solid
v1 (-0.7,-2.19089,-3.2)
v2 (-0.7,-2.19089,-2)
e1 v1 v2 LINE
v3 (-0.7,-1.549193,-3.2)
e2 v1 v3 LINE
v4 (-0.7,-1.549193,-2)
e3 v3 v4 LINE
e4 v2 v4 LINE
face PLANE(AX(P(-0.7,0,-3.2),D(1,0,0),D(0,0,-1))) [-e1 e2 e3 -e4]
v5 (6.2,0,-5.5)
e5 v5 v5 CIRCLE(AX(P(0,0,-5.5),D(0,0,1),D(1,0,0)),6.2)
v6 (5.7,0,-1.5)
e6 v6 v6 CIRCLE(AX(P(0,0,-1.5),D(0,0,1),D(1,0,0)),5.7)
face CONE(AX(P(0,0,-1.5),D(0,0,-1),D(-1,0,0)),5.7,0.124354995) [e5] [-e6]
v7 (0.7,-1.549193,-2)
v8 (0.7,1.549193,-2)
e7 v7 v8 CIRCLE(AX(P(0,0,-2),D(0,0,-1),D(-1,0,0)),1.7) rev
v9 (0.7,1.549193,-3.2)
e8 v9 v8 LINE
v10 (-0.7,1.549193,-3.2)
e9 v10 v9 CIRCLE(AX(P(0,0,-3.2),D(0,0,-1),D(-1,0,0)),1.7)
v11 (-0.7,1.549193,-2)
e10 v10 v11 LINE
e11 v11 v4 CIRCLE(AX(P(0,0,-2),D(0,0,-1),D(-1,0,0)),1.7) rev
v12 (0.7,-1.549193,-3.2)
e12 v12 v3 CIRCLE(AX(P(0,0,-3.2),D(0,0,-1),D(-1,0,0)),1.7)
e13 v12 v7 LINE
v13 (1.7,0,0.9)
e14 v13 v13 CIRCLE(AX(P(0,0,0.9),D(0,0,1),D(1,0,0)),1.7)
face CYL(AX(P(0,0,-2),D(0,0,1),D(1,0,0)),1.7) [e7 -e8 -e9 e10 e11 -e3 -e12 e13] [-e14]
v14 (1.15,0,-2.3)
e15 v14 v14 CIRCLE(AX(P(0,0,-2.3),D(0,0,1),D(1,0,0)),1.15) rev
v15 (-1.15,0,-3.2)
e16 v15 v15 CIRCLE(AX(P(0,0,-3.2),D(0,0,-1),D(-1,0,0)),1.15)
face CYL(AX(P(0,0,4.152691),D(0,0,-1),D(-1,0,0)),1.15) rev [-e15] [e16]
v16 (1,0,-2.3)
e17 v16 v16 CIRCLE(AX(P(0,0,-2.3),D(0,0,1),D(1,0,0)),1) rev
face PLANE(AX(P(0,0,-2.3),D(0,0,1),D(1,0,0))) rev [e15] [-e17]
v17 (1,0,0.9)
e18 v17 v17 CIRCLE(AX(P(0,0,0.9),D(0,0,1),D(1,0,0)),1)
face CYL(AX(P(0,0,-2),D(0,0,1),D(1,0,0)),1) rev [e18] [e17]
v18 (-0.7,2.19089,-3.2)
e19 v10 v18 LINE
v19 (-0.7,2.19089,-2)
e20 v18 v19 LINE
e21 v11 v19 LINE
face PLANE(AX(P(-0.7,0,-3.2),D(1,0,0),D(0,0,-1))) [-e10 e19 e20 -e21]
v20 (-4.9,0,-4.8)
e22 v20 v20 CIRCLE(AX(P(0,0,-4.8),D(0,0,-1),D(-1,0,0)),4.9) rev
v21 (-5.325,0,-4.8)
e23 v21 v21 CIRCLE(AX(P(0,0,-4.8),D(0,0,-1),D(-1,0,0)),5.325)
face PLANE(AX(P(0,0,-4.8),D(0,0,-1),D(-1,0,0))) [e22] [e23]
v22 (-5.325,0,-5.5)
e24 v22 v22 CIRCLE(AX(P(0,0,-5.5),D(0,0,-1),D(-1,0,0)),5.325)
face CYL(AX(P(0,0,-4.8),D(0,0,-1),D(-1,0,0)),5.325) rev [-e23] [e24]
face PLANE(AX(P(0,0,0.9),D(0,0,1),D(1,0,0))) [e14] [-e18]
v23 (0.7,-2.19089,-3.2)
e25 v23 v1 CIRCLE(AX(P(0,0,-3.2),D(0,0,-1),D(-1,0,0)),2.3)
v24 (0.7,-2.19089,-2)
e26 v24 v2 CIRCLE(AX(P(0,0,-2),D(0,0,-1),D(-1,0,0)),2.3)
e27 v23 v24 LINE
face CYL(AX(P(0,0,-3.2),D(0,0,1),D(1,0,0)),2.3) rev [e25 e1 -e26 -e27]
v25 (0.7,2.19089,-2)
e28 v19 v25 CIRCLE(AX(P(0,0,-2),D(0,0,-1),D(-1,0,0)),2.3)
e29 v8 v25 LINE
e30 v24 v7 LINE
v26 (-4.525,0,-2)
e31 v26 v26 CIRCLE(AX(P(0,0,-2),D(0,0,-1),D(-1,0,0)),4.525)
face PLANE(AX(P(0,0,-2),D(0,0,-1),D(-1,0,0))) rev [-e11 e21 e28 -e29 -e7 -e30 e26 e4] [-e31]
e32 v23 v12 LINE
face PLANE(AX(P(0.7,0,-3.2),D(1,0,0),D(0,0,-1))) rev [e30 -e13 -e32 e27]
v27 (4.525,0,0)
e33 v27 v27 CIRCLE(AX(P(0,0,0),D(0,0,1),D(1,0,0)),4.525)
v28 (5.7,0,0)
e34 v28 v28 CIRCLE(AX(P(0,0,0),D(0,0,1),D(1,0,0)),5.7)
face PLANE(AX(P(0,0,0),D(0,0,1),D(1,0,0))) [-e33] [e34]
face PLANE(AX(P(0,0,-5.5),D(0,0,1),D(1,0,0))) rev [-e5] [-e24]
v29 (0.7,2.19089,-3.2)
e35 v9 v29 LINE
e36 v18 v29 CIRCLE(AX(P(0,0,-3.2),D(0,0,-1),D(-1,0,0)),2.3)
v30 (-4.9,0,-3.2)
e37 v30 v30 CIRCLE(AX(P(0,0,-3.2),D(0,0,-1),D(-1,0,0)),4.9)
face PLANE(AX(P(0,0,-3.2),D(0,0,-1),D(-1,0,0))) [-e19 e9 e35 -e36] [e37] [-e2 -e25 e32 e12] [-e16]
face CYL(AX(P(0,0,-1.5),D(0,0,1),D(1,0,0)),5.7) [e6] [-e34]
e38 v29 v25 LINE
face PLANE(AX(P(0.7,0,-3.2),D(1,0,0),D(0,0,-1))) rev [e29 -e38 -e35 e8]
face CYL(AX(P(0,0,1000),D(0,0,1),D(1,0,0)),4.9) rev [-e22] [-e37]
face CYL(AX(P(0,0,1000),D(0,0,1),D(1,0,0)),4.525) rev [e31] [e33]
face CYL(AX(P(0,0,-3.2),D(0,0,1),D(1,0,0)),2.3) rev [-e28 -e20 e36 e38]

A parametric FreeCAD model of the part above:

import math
import FreeCAD as App
import Part
import Sketcher
Q = App.Units.Quantity


def add_polygon(sketch, points):
    """Adds a closed chain of lines whose ends are joined by coincident constraints."""
    first, n = sketch.GeometryCount, len(points)
    for a, b in zip(points, points[1:] + points[:1]):
        sketch.addGeometry(Part.LineSegment(App.Vector(*a, 0), App.Vector(*b, 0)), False)
    for i in range(n):
        sketch.addConstraint(Sketcher.Constraint("Coincident", first + i, 2, first + (i + 1) % n, 1))

doc = App.newDocument("Part")
body = doc.addObject("PartDesign::Body", "Body")

sketch1 = doc.addObject("Sketcher::SketchObject", "Sketch")
body.addObject(sketch1)
sketch1.AttachmentSupport = (doc.XY_Plane, [""])
sketch1.MapMode = "FlatFace"
sketch1.addGeometry(Part.Circle(App.Vector(0, 0, 0), App.Vector(0, 0, 1), 1.7), False)
sketch1.addGeometry(Part.Circle(App.Vector(0, 0, 0), App.Vector(0, 0, 1), 1), False)
sketch1.addConstraint(Sketcher.Constraint("Coincident", 0, 3, -1, 1))
sketch1.addConstraint(Sketcher.Constraint("Coincident", 1, 3, -1, 1))
sketch1.addConstraint(Sketcher.Constraint("Diameter", 1, Q("2 mm")))
sketch1.addConstraint(Sketcher.Constraint("Diameter", 0, Q("3.4 mm")))
pad1 = doc.addObject("PartDesign::Pad", "Pad")
body.addObject(pad1)
pad1.Profile = sketch1
pad1.Type = "TwoLengths"
pad1.Length = 0.9
pad1.Length2 = 2

sketch2 = doc.addObject("Sketcher::SketchObject", "Sketch001")
body.addObject(sketch2)
sketch2.AttachmentSupport = (doc.XY_Plane, [""])
sketch2.MapMode = "FlatFace"
sketch2.AttachmentOffset = App.Placement(App.Vector(0, 0, -2), App.Rotation())
sketch2.addGeometry(Part.Circle(App.Vector(0, 0, 0), App.Vector(0, 0, 1), 5), False)
sketch2.addConstraint(Sketcher.Constraint("Coincident", 0, 3, -1, 1))
sketch2.addConstraint(Sketcher.Constraint("Diameter", 0, Q("10 mm")))
pad2 = doc.addObject("PartDesign::Pad", "Pad001")
body.addObject(pad2)
pad2.Profile = sketch2
pad2.Length = 1.2
pad2.Reversed = True

sketch3 = doc.addObject("Sketcher::SketchObject", "Sketch002")
body.addObject(sketch3)
sketch3.AttachmentSupport = (doc.XY_Plane, [""])
sketch3.MapMode = "FlatFace"
sketch3.AttachmentOffset = App.Placement(App.Vector(0, 0, -2), App.Rotation())
sketch3.addGeometry(Part.LineSegment(App.Vector(0.7, -1.5, 0), App.Vector(0.7, -2.2, 0)), False)
sketch3.addGeometry(Part.ArcOfCircle(Part.Circle(App.Vector(0, 0, 0), App.Vector(0, 0, 1), 2.3), math.radians(-108), math.radians(-72)), False)
sketch3.addGeometry(Part.LineSegment(App.Vector(-0.7, -2.2, 0), App.Vector(-0.7, -1.5, 0)), False)
sketch3.addGeometry(Part.ArcOfCircle(Part.Circle(App.Vector(0, 0, 0), App.Vector(0, 0, 1), 1.7), math.radians(-114), math.radians(-66)), False)
sketch3.addGeometry(Part.ArcOfCircle(Part.Circle(App.Vector(0, 0, 0), App.Vector(0, 0, 1), 2.3), math.radians(72), math.radians(108)), False)
sketch3.addGeometry(Part.LineSegment(App.Vector(0.7, 2.2, 0), App.Vector(0.7, 1.5, 0)), False)
sketch3.addGeometry(Part.ArcOfCircle(Part.Circle(App.Vector(0, 0, 0), App.Vector(0, 0, 1), 1.7), math.radians(66), math.radians(114)), False)
sketch3.addGeometry(Part.LineSegment(App.Vector(-0.7, 1.5, 0), App.Vector(-0.7, 2.2, 0)), False)
sketch3.addGeometry(Part.Circle(App.Vector(0, 0, 0), App.Vector(0, 0, 1), 1), False)
sketch3.addConstraint(Sketcher.Constraint("Coincident", 0, 2, 1, 2))
sketch3.addConstraint(Sketcher.Constraint("Coincident", 1, 1, 2, 1))
sketch3.addConstraint(Sketcher.Constraint("Coincident", 2, 2, 3, 1))
sketch3.addConstraint(Sketcher.Constraint("Coincident", 3, 2, 0, 1))
sketch3.addConstraint(Sketcher.Constraint("Coincident", 4, 1, 5, 1))
sketch3.addConstraint(Sketcher.Constraint("Coincident", 5, 2, 6, 1))
sketch3.addConstraint(Sketcher.Constraint("Coincident", 6, 2, 7, 1))
sketch3.addConstraint(Sketcher.Constraint("Coincident", 7, 2, 4, 2))
sketch3.addConstraint(Sketcher.Constraint("Vertical", 0))
sketch3.addConstraint(Sketcher.Constraint("Vertical", 2))
sketch3.addConstraint(Sketcher.Constraint("Vertical", 5))
sketch3.addConstraint(Sketcher.Constraint("Vertical", 7))
sketch3.addConstraint(Sketcher.Constraint("Coincident", 1, 3, -1, 1))
sketch3.addConstraint(Sketcher.Constraint("Coincident", 3, 3, -1, 1))
sketch3.addConstraint(Sketcher.Constraint("Coincident", 4, 3, -1, 1))
sketch3.addConstraint(Sketcher.Constraint("Coincident", 6, 3, -1, 1))
sketch3.addConstraint(Sketcher.Constraint("Coincident", 8, 3, -1, 1))
sketch3.addConstraint(Sketcher.Constraint("Equal", 1, 4))
sketch3.addConstraint(Sketcher.Constraint("Equal", 3, 6))
sketch3.addConstraint(Sketcher.Constraint("Horizontal", 0, 2, 1, 1))
sketch3.addConstraint(Sketcher.Constraint("Horizontal", 5, 2, 6, 2))
sketch3.addConstraint(Sketcher.Constraint("Vertical", 3, 2, 4, 1))
sketch3.addConstraint(Sketcher.Constraint("Diameter", 8, Q("2 mm")))
sketch3.addConstraint(Sketcher.Constraint("Radius", 1, Q("2.3 mm")))
sketch3.addConstraint(Sketcher.Constraint("Radius", 3, Q("1.7 mm")))
sketch3.addConstraint(Sketcher.Constraint("DistanceX", -1, 1, 0, 2, Q("0.7 mm")))
pocket1 = doc.addObject("PartDesign::Pocket", "Pocket")
body.addObject(pocket1)
pocket1.Profile = sketch3
pocket1.Type = "ThroughAll"

sketch4 = doc.addObject("Sketcher::SketchObject", "Sketch003")
body.addObject(sketch4)
sketch4.AttachmentSupport = (doc.XY_Plane, [""])
sketch4.MapMode = "FlatFace"
sketch4.AttachmentOffset = App.Placement(App.Vector(0, 0, -3.2), App.Rotation())
sketch4.addGeometry(Part.Circle(App.Vector(0, 0, 0), App.Vector(0, 0, 1), 1.1), False)
sketch4.addConstraint(Sketcher.Constraint("Coincident", 0, 3, -1, 1))
sketch4.addConstraint(Sketcher.Constraint("Diameter", 0, Q("2.3 mm")))
pocket2 = doc.addObject("PartDesign::Pocket", "Pocket001")
body.addObject(pocket2)
pocket2.Profile = sketch4
pocket2.Length = 0.9
pocket2.Reversed = True
body2 = doc.addObject("PartDesign::Body", "Body001")

sketch5 = doc.addObject("Sketcher::SketchObject", "Sketch004")
body2.addObject(sketch5)
sketch5.AttachmentSupport = (doc.getObject("XY_Plane001"), [""])
sketch5.MapMode = "FlatFace"
sketch5.addGeometry(Part.Circle(App.Vector(0, 0, 0), App.Vector(0, 0, 1), 5.7), False)
sketch5.addGeometry(Part.Circle(App.Vector(0, 0, 0), App.Vector(0, 0, 1), 4.5), False)
sketch5.addConstraint(Sketcher.Constraint("Coincident", 0, 3, -1, 1))
sketch5.addConstraint(Sketcher.Constraint("Coincident", 1, 3, -1, 1))
sketch5.addConstraint(Sketcher.Constraint("Diameter", 0, Q("11.4 mm")))
sketch5.addConstraint(Sketcher.Constraint("Diameter", 1, Q("9.05 mm")))
pad3 = doc.addObject("PartDesign::Pad", "Pad002")
body2.addObject(pad3)
pad3.Profile = sketch5
pad3.Length = 1.5
pad3.Reversed = True
body.AllowCompound = True
doc.recompute()

boolean = doc.addObject("PartDesign::Boolean", "Boolean")
body.addObject(boolean)
boolean.Type = "Fuse"
boolean.addObjects([body2])

sketch6 = doc.addObject("Sketcher::SketchObject", "Sketch005")
body.addObject(sketch6)
sketch6.AttachmentSupport = (doc.YZ_Plane, [""])
sketch6.MapMode = "FlatFace"
add_polygon(sketch6, [(6.2, -5.5), (5.7, -1.5), (4.53, -1.5), (4.53, -2), (4.9, -2), (4.9, -5.5)])
sketch6.addConstraint(Sketcher.Constraint("Horizontal", 1))
sketch6.addConstraint(Sketcher.Constraint("Vertical", 2))
sketch6.addConstraint(Sketcher.Constraint("Horizontal", 3))
sketch6.addConstraint(Sketcher.Constraint("Vertical", 4))
sketch6.addConstraint(Sketcher.Constraint("Horizontal", 5))
sketch6.addConstraint(Sketcher.Constraint("DistanceX", 5, 1, 5, 2, Q("1.3 mm")))
sketch6.addConstraint(Sketcher.Constraint("DistanceY", 2, 2, 2, 1, Q("0.5 mm")))
sketch6.addConstraint(Sketcher.Constraint("DistanceY", 4, 2, 4, 1, Q("3.5 mm")))
sketch6.addConstraint(Sketcher.Constraint("DistanceY", 2, 2, -1, 1, Q("2 mm")))
sketch6.addConstraint(Sketcher.Constraint("DistanceX", -1, 1, 0, 2, Q("5.7 mm")))
sketch6.addConstraint(Sketcher.Constraint("DistanceX", -1, 1, 3, 2, Q("4.9 mm")))
sketch6.addConstraint(Sketcher.Constraint("DistanceX", 1, 2, 1, 1, Q("1.175 mm")))
revolution = doc.addObject("PartDesign::Revolution", "Revolution")
body.addObject(revolution)
revolution.Profile = sketch6
revolution.ReferenceAxis = (sketch6, ["V_Axis"])
revolution.Angle = 360

sketch7 = doc.addObject("Sketcher::SketchObject", "Sketch006")
body.addObject(sketch7)
sketch7.AttachmentSupport = (doc.XY_Plane, [""])
sketch7.MapMode = "FlatFace"
sketch7.AttachmentOffset = App.Placement(App.Vector(0, 0, -5.5), App.Rotation())
sketch7.addGeometry(Part.Circle(App.Vector(0, 0, 0), App.Vector(0, 0, 1), 5), False)
sketch7.addConstraint(Sketcher.Constraint("Coincident", 0, 3, -1, 1))
sketch7.addConstraint(Sketcher.Constraint("Diameter", 0, Q("10.65 mm")))
pocket3 = doc.addObject("PartDesign::Pocket", "Pocket002")
body.addObject(pocket3)
pocket3.Profile = sketch7
pocket3.Length = 0.7
pocket3.Reversed = True

doc.recompute()
